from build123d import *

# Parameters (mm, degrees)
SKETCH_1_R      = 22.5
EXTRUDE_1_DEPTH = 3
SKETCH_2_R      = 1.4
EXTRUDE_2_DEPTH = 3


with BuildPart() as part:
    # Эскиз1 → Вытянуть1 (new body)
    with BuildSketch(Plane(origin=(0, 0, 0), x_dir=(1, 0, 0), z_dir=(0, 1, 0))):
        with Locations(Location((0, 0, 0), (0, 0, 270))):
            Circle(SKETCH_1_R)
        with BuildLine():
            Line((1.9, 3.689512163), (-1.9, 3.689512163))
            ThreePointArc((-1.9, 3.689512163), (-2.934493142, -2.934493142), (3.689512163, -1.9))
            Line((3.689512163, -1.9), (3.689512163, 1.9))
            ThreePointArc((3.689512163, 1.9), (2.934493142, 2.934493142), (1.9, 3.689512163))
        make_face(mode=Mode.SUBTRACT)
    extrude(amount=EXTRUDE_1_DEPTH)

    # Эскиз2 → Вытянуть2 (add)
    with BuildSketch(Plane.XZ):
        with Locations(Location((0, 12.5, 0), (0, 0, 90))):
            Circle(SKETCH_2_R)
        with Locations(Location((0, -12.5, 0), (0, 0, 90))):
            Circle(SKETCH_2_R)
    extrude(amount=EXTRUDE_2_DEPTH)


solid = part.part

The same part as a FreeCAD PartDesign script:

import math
import FreeCAD as App
import Part
import Sketcher
from FreeCAD import Vector

doc = App.newDocument("Part")
params = doc.addObject("Spreadsheet::Sheet", "Params")
for row, (alias, value) in enumerate([
    ("sketch1_diameter", "45 mm"),
    ("sketch1_radius", "4.15 mm"),
    ("sketch1_width", "3.8 mm"),
    ("pad1_length", "3 mm"),
    ("sketch2_diameter", "2.8 mm"),
    ("pad2_length", "3 mm"),
], start=1):
    params.set(f"A{row}", alias)
    params.set(f"B{row}", "=" + value)
    params.setAlias(f"B{row}", alias)

body = doc.addObject("PartDesign::Body", "Body")

sketch1 = body.newObject("Sketcher::SketchObject", "Sketch")
sketch1.AttachmentSupport = (doc.getObject("XZ_Plane"), [""])
sketch1.MapMode = "FlatFace"
sketch1.addGeometry([
    Part.Circle(Vector(0, 0, 0), Vector(0, 0, 1), 22.5),
    Part.LineSegment(Vector(-1.9, -3.7, 0), Vector(1.9, -3.7, 0)),
    Part.ArcOfCircle(Part.Circle(Vector(0, 0, 0), Vector(0, 0, 1), 4.2), math.radians(-63), math.radians(-27)),
    Part.LineSegment(Vector(3.7, -1.9, 0), Vector(3.7, 1.9, 0)),
    Part.ArcOfCircle(Part.Circle(Vector(0, 0, 0), Vector(0, 0, 1), 4.2), math.radians(27), math.radians(243)),
], False)
sketch1.addConstraint([
    Sketcher.Constraint("Coincident", 1, 2, 2, 1),
    Sketcher.Constraint("Coincident", 2, 2, 3, 1),
    Sketcher.Constraint("Coincident", 3, 2, 4, 1),
    Sketcher.Constraint("Coincident", 4, 2, 1, 1),
    Sketcher.Constraint("Horizontal", 1),
    Sketcher.Constraint("Vertical", 3),
    Sketcher.Constraint("Coincident", 0, 3, -1, 1),
    Sketcher.Constraint("Coincident", 2, 3, -1, 1),
    Sketcher.Constraint("Coincident", 4, 3, -1, 1),
    Sketcher.Constraint("Equal", 2, 4),
    Sketcher.Constraint("Equal", 1, 3),
    Sketcher.Constraint("Diameter", 0, 45.0),
    Sketcher.Constraint("Radius", 2, 4.15),
    Sketcher.Constraint("DistanceX", 1, 1, 1, 2, 3.8),
])
sketch1.setExpression("Constraints[11]", "Params.sketch1_diameter")
sketch1.setExpression("Constraints[12]", "Params.sketch1_radius")
sketch1.setExpression("Constraints[13]", "Params.sketch1_width")
pad1 = body.newObject("PartDesign::Pad", "Pad")
pad1.Profile = sketch1
pad1.setExpression("Length", "Params.pad1_length")
pad1.Reversed = True

sketch2 = body.newObject("Sketcher::SketchObject", "Sketch001")
sketch2.AttachmentSupport = (doc.getObject("XZ_Plane"), [""])
sketch2.MapMode = "FlatFace"
sketch2.addGeometry([
    Part.Circle(Vector(0, 12.5, 0), Vector(0, 0, 1), 1.4),
    Part.Circle(Vector(0, -12.5, 0), Vector(0, 0, 1), 1.4),
], False)
sketch2.addConstraint([
    Sketcher.Constraint("Equal", 0, 1),
    Sketcher.Constraint("Symmetric", 0, 3, 1, 3, -1, 1),
    Sketcher.Constraint("PointOnObject", 0, 3, -2),
    Sketcher.Constraint("Diameter", 0, 2.8),
    Sketcher.Constraint("DistanceY", 1, 3, 0, 3, 25.0),
])
sketch2.setExpression("Constraints[3]", "Params.sketch2_diameter")
pad2 = body.newObject("PartDesign::Pad", "Pad001")
pad2.Profile = sketch2
pad2.setExpression("Length", "Params.pad2_length")

doc.recompute()
